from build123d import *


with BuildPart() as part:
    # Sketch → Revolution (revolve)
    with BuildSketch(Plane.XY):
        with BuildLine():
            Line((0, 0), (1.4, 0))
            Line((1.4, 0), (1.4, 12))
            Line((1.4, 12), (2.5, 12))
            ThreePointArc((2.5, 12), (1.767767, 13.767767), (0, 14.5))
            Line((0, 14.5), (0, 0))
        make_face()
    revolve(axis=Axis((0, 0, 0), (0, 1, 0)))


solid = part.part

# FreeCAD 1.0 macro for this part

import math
import FreeCAD as App
import Part
import Sketcher

V = App.Vector
Q = App.Units.Quantity

doc = App.newDocument("Part")
body = doc.addObject("PartDesign::Body", "Body")

sketch1 = body.newObject("Sketcher::SketchObject", "Sketch")
sketch1.AttachmentSupport = (doc.getObject("XY_Plane"), [""])
sketch1.MapMode = "FlatFace"
sketch1.addGeometry(Part.LineSegment(V(0, 0, 0), V(1.4, 0, 0)), False)
sketch1.addGeometry(Part.LineSegment(V(1.4, 0, 0), V(1.4, 12, 0)), False)
sketch1.addGeometry(Part.LineSegment(V(1.4, 12, 0), V(2.5, 12, 0)), False)
sketch1.addGeometry(Part.ArcOfCircle(Part.Circle(V(0, 12, 0), V(0, 0, 1), 2.5), math.radians(0), math.radians(90)), False)
sketch1.addGeometry(Part.LineSegment(V(0, 14.5, 0), V(0, 0, 0)), False)
sketch1.addConstraint(Sketcher.Constraint("Coincident", 0, 2, 1, 1))
sketch1.addConstraint(Sketcher.Constraint("Coincident", 1, 2, 2, 1))
sketch1.addConstraint(Sketcher.Constraint("Coincident", 2, 2, 3, 1))
sketch1.addConstraint(Sketcher.Constraint("Coincident", 3, 2, 4, 1))
sketch1.addConstraint(Sketcher.Constraint("Coincident", 4, 2, 0, 1))
sketch1.addConstraint(Sketcher.Constraint("Horizontal", 0))
sketch1.addConstraint(Sketcher.Constraint("Vertical", 1))
sketch1.addConstraint(Sketcher.Constraint("Horizontal", 2))
sketch1.addConstraint(Sketcher.Constraint("Vertical", 4))
sketch1.addConstraint(Sketcher.Constraint("Coincident", 4, 2, -1, 1))
sketch1.addConstraint(Sketcher.Constraint("PointOnObject", 3, 3, -2))
sketch1.addConstraint(Sketcher.Constraint("Horizontal", 3, 3, 1, 2))
sketch1.addConstraint(Sketcher.Constraint("Radius", 3, Q("2.5 mm")))
sketch1.addConstraint(Sketcher.Constraint("DistanceY", 1, 1, 1, 2, Q("12 mm")))
sketch1.addConstraint(Sketcher.Constraint("DistanceX", 0, 1, 0, 2, Q("1.4 mm")))
revolution = body.newObject("PartDesign::Revolution", "Revolution")
revolution.Profile = sketch1
revolution.ReferenceAxis = (sketch1, ["V_Axis"])
revolution.Angle = 360

doc.recompute()
